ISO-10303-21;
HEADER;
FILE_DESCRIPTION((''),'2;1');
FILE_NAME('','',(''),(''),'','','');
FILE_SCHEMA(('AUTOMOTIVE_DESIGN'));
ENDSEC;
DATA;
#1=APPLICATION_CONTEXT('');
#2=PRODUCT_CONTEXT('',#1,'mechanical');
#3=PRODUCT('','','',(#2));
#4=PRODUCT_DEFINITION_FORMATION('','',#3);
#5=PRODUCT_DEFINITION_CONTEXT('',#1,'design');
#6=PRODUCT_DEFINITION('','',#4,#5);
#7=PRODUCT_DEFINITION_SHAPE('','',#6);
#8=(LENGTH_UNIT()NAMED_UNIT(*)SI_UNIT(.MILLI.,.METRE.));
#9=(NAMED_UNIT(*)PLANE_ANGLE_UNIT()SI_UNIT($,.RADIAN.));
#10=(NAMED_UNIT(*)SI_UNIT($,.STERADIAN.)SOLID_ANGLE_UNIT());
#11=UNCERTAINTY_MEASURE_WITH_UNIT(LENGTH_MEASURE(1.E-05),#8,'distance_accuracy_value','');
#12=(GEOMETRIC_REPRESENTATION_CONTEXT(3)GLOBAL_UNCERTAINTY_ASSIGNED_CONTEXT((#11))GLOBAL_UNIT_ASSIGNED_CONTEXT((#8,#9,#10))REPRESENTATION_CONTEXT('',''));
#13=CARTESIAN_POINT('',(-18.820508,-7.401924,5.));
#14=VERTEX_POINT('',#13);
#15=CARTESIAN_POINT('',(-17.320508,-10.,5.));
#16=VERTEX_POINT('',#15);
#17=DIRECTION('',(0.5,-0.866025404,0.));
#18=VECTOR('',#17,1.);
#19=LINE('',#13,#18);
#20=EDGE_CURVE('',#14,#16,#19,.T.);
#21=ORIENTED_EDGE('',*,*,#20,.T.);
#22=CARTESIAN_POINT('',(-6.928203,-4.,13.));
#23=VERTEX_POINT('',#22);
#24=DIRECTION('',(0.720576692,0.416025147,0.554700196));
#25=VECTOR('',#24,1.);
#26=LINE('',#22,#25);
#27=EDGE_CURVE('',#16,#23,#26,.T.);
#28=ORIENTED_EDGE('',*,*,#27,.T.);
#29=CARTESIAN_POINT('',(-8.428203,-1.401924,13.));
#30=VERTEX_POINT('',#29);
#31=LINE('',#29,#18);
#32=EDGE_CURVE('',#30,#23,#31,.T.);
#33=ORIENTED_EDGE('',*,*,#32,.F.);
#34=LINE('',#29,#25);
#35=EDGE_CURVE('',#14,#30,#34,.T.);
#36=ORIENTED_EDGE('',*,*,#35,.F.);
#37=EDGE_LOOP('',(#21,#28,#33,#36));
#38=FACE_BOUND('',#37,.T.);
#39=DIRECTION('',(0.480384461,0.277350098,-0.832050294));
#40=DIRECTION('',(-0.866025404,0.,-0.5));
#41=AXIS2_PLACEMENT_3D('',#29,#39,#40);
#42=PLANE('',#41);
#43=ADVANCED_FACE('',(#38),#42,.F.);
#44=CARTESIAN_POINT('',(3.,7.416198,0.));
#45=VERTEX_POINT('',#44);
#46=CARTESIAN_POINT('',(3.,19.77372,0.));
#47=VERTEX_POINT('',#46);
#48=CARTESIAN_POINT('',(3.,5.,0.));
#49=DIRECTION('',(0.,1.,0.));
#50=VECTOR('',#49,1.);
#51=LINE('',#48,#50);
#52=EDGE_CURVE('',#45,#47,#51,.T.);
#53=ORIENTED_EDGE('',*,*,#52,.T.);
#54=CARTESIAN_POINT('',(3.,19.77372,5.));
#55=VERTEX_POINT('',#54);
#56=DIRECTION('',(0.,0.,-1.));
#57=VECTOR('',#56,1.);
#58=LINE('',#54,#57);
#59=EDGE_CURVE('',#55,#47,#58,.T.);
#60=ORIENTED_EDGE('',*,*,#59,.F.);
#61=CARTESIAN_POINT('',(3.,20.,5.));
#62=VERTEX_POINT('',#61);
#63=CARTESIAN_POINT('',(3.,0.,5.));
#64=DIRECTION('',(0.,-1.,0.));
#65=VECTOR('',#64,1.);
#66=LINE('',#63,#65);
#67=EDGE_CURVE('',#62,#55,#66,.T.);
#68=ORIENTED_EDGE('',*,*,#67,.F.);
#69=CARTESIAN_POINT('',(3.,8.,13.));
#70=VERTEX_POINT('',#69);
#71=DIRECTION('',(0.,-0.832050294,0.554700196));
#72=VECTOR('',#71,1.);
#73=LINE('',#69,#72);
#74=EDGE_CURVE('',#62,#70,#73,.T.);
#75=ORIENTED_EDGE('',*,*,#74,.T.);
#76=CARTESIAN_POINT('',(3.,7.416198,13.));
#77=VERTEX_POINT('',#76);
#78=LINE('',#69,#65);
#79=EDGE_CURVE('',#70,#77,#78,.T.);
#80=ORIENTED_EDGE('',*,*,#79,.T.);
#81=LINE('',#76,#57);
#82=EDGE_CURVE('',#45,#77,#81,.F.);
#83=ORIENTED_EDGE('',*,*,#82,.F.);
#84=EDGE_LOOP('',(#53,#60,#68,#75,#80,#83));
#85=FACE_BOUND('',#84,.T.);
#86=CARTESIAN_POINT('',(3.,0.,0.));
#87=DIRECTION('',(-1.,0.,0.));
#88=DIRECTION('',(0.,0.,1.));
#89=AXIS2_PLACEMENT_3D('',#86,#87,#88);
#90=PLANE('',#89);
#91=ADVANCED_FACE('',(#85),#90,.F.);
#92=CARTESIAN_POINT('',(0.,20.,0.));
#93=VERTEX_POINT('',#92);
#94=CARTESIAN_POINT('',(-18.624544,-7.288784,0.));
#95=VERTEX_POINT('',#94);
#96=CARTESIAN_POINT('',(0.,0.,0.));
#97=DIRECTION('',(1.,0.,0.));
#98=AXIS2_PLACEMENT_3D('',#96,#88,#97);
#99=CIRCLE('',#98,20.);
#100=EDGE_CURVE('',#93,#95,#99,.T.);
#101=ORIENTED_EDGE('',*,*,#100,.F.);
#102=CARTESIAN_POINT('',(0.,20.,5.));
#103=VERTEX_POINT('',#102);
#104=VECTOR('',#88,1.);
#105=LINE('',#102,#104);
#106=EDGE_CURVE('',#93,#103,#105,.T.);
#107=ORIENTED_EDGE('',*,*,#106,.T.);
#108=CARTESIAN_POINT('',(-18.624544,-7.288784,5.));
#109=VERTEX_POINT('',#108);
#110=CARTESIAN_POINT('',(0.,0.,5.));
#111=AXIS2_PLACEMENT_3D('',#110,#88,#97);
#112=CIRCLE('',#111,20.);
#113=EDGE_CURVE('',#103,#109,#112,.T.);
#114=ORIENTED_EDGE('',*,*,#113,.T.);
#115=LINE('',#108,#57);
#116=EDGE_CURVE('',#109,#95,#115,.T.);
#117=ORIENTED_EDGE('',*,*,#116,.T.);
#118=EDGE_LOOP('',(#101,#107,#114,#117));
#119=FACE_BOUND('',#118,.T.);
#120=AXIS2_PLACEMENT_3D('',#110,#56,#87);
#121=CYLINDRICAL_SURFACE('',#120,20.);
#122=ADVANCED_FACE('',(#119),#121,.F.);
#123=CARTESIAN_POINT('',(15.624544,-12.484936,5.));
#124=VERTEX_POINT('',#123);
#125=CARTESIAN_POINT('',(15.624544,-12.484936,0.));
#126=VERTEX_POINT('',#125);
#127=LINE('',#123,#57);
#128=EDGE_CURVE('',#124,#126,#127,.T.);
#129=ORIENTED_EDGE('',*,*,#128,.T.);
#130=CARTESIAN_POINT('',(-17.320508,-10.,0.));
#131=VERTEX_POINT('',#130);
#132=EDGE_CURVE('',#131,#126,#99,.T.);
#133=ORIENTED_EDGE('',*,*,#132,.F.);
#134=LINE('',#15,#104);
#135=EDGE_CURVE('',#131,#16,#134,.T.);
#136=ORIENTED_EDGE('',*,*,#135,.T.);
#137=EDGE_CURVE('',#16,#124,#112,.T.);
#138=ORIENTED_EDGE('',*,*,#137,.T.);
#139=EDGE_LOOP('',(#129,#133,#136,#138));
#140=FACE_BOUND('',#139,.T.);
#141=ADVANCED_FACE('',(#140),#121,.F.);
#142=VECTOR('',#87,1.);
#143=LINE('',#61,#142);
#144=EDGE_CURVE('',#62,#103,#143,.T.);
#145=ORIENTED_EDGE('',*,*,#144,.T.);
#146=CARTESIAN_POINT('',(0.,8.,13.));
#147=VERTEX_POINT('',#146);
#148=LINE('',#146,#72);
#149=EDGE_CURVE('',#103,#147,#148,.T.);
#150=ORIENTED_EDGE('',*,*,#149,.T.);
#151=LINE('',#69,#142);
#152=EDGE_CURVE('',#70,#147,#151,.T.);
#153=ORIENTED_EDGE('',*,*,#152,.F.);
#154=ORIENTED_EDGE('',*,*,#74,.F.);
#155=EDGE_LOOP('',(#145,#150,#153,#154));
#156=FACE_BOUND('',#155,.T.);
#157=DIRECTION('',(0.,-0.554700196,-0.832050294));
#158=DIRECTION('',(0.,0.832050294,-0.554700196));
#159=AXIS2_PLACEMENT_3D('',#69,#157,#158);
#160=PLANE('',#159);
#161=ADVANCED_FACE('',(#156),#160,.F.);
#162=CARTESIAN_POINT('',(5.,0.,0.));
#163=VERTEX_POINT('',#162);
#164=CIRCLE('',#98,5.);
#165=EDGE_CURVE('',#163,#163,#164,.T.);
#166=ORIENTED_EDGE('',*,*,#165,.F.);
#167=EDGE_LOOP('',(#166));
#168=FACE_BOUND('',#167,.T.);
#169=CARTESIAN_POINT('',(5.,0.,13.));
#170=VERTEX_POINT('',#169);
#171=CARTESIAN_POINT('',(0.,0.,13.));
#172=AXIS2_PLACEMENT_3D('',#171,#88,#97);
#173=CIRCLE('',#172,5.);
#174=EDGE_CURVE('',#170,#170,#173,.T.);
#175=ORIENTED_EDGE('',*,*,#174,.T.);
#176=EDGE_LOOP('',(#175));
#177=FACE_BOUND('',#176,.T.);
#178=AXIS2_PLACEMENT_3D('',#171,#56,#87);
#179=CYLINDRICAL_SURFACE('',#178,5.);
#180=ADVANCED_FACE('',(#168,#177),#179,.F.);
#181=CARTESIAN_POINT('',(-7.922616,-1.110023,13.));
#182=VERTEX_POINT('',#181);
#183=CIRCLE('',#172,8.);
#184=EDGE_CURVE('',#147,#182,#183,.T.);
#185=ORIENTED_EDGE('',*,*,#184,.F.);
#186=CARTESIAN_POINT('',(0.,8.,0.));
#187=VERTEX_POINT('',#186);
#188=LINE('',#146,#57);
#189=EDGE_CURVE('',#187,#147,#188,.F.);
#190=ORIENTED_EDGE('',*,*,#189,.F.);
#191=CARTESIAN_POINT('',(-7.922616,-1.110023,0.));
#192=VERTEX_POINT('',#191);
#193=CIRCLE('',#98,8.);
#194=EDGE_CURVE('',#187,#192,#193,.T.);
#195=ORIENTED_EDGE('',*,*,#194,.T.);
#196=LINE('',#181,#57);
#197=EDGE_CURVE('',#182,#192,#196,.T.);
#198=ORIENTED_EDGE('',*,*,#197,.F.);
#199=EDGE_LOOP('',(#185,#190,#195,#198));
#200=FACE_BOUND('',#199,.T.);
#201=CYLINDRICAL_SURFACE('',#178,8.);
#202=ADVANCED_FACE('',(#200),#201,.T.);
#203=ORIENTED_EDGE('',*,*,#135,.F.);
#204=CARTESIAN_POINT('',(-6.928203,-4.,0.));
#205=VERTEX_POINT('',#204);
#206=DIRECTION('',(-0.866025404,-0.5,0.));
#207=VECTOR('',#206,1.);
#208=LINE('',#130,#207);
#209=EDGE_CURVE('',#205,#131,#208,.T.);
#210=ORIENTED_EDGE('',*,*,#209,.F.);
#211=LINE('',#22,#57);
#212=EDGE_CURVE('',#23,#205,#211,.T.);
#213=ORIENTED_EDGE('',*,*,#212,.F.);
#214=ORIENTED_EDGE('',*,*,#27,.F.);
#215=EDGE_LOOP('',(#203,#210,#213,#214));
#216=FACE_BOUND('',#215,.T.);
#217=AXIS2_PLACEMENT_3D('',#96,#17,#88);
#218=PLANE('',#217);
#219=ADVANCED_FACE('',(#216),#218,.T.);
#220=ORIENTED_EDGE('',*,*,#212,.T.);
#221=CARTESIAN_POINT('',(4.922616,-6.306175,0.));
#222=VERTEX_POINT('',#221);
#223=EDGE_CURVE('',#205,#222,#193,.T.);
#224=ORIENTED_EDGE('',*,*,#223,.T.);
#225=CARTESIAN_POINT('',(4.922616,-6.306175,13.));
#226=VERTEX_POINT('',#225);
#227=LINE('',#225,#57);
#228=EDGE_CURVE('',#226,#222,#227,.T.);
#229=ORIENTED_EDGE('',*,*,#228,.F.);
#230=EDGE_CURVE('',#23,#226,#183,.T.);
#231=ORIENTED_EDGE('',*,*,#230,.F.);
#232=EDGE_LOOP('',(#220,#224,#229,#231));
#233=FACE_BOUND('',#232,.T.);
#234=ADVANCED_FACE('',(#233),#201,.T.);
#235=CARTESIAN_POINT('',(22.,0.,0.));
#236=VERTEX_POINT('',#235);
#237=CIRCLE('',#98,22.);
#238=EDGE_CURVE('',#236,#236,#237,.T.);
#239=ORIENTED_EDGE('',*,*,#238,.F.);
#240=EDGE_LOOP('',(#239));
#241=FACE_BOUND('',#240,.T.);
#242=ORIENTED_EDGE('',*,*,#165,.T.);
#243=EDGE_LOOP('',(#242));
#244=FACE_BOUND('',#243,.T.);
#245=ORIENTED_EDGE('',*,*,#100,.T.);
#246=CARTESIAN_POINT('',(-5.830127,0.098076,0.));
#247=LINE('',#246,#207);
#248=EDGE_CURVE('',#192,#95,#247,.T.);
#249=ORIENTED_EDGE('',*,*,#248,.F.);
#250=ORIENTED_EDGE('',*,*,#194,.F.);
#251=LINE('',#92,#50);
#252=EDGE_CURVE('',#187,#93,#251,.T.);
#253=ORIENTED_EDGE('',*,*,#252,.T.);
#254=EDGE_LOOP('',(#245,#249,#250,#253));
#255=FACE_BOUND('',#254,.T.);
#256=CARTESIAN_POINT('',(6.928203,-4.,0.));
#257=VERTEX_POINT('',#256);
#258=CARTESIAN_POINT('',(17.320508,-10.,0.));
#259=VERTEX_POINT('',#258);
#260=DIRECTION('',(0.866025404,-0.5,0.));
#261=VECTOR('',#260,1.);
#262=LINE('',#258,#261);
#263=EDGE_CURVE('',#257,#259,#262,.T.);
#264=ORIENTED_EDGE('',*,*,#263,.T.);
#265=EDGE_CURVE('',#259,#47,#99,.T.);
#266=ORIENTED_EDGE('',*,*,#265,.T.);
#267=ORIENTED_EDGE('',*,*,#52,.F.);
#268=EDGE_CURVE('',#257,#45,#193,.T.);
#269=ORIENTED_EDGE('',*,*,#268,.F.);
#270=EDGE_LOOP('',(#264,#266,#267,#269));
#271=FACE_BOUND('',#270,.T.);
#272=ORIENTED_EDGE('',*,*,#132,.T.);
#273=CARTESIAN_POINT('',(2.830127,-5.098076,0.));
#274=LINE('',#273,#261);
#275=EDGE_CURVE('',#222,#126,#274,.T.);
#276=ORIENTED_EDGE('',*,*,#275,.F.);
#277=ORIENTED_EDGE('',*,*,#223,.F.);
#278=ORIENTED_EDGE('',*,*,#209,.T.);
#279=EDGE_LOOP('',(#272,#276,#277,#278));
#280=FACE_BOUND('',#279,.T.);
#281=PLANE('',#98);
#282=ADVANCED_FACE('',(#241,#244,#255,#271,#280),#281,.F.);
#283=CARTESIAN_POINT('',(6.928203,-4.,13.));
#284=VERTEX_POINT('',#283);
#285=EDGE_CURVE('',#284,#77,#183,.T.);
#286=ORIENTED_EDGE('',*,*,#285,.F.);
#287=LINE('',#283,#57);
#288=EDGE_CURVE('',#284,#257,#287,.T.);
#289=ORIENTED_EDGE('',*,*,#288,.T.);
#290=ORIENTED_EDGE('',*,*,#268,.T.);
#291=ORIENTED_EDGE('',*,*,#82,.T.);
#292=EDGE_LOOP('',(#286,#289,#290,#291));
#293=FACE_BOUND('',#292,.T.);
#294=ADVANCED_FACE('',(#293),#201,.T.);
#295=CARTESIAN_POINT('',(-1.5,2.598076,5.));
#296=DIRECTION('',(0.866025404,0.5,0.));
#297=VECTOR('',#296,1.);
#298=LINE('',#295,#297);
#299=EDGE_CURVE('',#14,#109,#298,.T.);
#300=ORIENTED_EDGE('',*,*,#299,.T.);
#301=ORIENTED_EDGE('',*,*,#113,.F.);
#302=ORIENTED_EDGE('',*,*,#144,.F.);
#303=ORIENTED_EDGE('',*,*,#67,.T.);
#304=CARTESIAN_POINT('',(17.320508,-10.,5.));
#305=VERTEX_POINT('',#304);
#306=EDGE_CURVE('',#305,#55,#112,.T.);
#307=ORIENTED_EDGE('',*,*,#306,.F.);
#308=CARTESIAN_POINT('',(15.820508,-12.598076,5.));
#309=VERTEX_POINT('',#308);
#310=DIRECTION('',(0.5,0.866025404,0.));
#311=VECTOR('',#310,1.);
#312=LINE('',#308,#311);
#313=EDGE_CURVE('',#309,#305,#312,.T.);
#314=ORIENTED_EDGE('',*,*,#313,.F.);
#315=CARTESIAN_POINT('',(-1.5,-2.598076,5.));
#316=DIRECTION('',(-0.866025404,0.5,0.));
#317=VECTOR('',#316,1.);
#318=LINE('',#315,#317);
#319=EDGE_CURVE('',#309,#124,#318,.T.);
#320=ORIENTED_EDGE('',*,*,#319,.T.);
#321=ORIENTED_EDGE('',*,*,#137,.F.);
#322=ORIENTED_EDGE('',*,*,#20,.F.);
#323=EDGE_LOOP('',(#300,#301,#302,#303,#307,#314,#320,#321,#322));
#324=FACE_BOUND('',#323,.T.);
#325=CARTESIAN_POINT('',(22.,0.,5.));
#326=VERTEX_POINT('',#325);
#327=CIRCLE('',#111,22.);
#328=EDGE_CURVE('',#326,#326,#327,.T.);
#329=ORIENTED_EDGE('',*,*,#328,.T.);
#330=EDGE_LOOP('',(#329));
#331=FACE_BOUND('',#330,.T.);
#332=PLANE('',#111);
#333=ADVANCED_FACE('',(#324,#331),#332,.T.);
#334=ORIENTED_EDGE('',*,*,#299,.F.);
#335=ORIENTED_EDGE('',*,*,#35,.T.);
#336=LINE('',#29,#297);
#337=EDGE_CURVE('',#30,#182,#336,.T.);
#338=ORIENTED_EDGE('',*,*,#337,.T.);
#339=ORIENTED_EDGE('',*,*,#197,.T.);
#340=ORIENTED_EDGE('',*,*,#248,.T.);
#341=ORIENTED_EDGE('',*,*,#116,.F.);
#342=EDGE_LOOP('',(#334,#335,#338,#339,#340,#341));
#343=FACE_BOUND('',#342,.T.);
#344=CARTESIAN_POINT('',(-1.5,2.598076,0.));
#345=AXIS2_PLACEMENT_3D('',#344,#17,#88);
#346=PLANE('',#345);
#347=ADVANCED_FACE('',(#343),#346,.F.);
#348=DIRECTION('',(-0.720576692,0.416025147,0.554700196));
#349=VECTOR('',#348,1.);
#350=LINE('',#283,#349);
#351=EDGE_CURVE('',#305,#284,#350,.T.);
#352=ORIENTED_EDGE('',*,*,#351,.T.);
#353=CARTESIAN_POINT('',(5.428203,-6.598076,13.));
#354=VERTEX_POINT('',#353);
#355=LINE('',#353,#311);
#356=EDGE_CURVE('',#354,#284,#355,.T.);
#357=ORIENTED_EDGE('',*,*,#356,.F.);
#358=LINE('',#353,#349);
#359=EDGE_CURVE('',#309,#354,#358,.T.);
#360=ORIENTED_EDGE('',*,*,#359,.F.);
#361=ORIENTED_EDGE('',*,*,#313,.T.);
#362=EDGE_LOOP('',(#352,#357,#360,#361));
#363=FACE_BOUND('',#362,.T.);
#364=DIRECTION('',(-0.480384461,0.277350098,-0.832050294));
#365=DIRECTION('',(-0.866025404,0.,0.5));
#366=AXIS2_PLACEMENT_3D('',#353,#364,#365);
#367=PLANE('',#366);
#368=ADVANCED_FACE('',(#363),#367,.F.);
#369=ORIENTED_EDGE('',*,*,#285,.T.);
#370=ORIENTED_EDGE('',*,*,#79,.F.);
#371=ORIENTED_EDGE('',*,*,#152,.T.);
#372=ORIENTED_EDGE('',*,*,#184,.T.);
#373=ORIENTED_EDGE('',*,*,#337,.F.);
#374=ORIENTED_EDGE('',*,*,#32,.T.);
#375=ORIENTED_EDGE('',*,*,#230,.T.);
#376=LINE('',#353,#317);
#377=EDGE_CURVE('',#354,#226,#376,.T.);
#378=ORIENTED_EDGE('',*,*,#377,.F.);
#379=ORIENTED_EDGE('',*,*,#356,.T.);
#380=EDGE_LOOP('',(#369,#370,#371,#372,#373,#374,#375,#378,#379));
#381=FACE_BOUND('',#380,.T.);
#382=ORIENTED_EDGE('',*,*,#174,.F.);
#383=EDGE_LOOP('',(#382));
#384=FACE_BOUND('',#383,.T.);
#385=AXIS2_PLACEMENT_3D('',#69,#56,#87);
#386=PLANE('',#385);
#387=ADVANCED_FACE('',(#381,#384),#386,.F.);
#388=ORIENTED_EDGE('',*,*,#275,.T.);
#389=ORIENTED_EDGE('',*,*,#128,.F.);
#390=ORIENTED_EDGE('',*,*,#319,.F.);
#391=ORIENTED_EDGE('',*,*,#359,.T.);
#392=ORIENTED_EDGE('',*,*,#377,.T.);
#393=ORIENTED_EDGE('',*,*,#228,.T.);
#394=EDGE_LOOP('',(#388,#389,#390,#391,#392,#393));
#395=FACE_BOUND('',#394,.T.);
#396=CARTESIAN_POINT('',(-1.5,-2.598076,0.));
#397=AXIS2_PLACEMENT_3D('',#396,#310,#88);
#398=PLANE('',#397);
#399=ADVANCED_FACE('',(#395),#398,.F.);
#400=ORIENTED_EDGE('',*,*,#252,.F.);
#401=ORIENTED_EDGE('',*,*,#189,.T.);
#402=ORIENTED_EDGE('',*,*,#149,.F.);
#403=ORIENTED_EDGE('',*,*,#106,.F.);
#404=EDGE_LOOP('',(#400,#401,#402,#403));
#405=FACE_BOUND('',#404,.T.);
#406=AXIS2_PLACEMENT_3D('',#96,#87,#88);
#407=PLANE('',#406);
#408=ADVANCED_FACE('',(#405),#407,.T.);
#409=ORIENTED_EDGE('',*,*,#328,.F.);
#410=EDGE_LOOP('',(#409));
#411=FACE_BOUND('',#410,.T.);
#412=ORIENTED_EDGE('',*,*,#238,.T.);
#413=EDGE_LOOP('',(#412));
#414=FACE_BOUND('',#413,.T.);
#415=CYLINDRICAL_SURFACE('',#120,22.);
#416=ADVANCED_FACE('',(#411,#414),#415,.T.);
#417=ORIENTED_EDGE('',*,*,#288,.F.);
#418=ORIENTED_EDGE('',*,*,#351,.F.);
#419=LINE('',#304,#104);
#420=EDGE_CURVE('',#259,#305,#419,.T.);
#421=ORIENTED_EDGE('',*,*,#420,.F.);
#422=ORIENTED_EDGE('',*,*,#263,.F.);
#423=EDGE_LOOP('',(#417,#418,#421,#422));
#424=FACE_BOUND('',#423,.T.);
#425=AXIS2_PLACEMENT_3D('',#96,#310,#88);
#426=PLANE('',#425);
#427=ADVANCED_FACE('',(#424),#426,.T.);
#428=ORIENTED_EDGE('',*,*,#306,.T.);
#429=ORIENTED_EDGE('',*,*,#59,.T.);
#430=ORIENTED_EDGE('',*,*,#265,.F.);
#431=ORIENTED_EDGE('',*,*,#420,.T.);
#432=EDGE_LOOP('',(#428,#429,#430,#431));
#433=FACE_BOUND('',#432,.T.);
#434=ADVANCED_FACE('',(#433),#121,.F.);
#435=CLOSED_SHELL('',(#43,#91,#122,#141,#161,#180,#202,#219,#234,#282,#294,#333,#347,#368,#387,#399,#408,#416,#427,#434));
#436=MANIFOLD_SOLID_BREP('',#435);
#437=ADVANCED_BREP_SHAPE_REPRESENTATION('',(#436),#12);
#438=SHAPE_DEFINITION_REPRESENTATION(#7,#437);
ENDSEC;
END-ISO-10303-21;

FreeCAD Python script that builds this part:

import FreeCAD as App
import Part
import Sketcher

V = App.Vector

doc = App.newDocument("Part")
params = doc.addObject("Spreadsheet::Sheet", "Params")
for row, (alias, value) in enumerate([
    ("sketch1_diameter", "44 mm"),
    ("sketch1_diameter2", "40 mm"),
    ("pad1_length", "5 mm"),
    ("sketch2_diameter", "16 mm"),
    ("sketch2_diameter2", "10 mm"),
    ("pad2_length", "13 mm"),
    ("sketch3_width", "3 mm"),
    ("sketch3_width2", "15 mm"),
    ("sketch3_height", "13 mm"),
    ("sketch3_height2", "5 mm"),
    ("pad3_length", "3 mm"),
], start=1):
    params.set(f"A{row}", alias)
    params.set(f"B{row}", "=" + value)
    params.setAlias(f"B{row}", alias)

body = doc.addObject("PartDesign::Body", "Body")

# Sketch on XY plane
sketch1 = body.newObject("Sketcher::SketchObject", "Sketch")
sketch1.AttachmentSupport = (doc.getObject("XY_Plane"), [""])
sketch1.MapMode = "FlatFace"
sketch1.addGeometry([
    Part.Circle(V(0, 0, 0), V(0, 0, 1), 22),
    Part.Circle(V(0, 0, 0), V(0, 0, 1), 20),
], False)
sketch1.addConstraint([
    Sketcher.Constraint("Coincident", 0, 3, -1, 1),
    Sketcher.Constraint("Coincident", 1, 3, -1, 1),
    Sketcher.Constraint("Diameter", 0, 44.0),
    Sketcher.Constraint("Diameter", 1, 40.0),
])
sketch1.setExpression("Constraints[2]", "Params.sketch1_diameter")
sketch1.setExpression("Constraints[3]", "Params.sketch1_diameter2")
pad1 = body.newObject("PartDesign::Pad", "Pad")
pad1.Profile = sketch1
pad1.setExpression("Length", "Params.pad1_length")
body2 = doc.addObject("PartDesign::Body", "Body001")

# Sketch on XY plane
sketch2 = body2.newObject("Sketcher::SketchObject", "Sketch001")
sketch2.AttachmentSupport = (doc.getObject("XY_Plane001"), [""])
sketch2.MapMode = "FlatFace"
sketch2.addGeometry([
    Part.Circle(V(0, 0, 0), V(0, 0, 1), 8),
    Part.Circle(V(0, 0, 0), V(0, 0, 1), 5),
], False)
sketch2.addConstraint([
    Sketcher.Constraint("Coincident", 0, 3, -1, 1),
    Sketcher.Constraint("Coincident", 1, 3, -1, 1),
    Sketcher.Constraint("Diameter", 0, 16.0),
    Sketcher.Constraint("Diameter", 1, 10.0),
])
sketch2.setExpression("Constraints[2]", "Params.sketch2_diameter")
sketch2.setExpression("Constraints[3]", "Params.sketch2_diameter2")
pad2 = body2.newObject("PartDesign::Pad", "Pad001")
pad2.Profile = sketch2
pad2.setExpression("Length", "Params.pad2_length")
body.AllowCompound = True
doc.recompute()

boolean = body.newObject("PartDesign::Boolean", "Boolean")
boolean.Type = "Fuse"
boolean.addObjects([body2])

# Sketch on YZ plane
sketch3 = body.newObject("Sketcher::SketchObject", "Sketch002")
sketch3.AttachmentSupport = (doc.getObject("YZ_Plane"), [""])
sketch3.MapMode = "FlatFace"
sketch3.addGeometry([
    Part.LineSegment(V(20, 5, 0), V(8, 13, 0)),  # 0
    Part.LineSegment(V(8, 13, 0), V(5, 13, 0)),  # 1
    Part.LineSegment(V(5, 13, 0), V(5, 0, 0)),  # 2
    Part.LineSegment(V(5, 0, 0), V(20, 0, 0)),  # 3
    Part.LineSegment(V(20, 0, 0), V(20, 5, 0)),  # 4
], False)
sketch3.addConstraint([
    Sketcher.Constraint("Coincident", 0, 2, 1, 1),
    Sketcher.Constraint("Coincident", 1, 2, 2, 1),
    Sketcher.Constraint("Coincident", 2, 2, 3, 1),
    Sketcher.Constraint("Coincident", 3, 2, 4, 1),
    Sketcher.Constraint("Coincident", 4, 2, 0, 1),
    Sketcher.Constraint("Horizontal", 1),
    Sketcher.Constraint("Vertical", 2),
    Sketcher.Constraint("Horizontal", 3),
    Sketcher.Constraint("Vertical", 4),
    Sketcher.Constraint("PointOnObject", 2, 2, -1),
    Sketcher.Constraint("DistanceX", 1, 2, 1, 1, 3.0),
    Sketcher.Constraint("DistanceX", 3, 1, 3, 2, 15.0),
    Sketcher.Constraint("DistanceY", 2, 2, 2, 1, 13.0),
    Sketcher.Constraint("DistanceY", 4, 1, 4, 2, 5.0),
    Sketcher.Constraint("DistanceX", -1, 1, 0, 2, 8.0),
])
sketch3.setExpression("Constraints[10]", "Params.sketch3_width")
sketch3.setExpression("Constraints[11]", "Params.sketch3_width2")
sketch3.setExpression("Constraints[12]", "Params.sketch3_height")
sketch3.setExpression("Constraints[13]", "Params.sketch3_height2")
pad3 = body.newObject("PartDesign::Pad", "Pad002")
pad3.Profile = sketch3
pad3.setExpression("Length", "Params.pad3_length")
doc.recompute()

polarpattern = body.newObject("PartDesign::PolarPattern", "PolarPattern")
polarpattern.Originals = [pad3]
polarpattern.Axis = (doc.getObject("Z_Axis"), [""])
polarpattern.Angle = 360
polarpattern.Occurrences = 3
body.Tip = polarpattern

doc.recompute()
